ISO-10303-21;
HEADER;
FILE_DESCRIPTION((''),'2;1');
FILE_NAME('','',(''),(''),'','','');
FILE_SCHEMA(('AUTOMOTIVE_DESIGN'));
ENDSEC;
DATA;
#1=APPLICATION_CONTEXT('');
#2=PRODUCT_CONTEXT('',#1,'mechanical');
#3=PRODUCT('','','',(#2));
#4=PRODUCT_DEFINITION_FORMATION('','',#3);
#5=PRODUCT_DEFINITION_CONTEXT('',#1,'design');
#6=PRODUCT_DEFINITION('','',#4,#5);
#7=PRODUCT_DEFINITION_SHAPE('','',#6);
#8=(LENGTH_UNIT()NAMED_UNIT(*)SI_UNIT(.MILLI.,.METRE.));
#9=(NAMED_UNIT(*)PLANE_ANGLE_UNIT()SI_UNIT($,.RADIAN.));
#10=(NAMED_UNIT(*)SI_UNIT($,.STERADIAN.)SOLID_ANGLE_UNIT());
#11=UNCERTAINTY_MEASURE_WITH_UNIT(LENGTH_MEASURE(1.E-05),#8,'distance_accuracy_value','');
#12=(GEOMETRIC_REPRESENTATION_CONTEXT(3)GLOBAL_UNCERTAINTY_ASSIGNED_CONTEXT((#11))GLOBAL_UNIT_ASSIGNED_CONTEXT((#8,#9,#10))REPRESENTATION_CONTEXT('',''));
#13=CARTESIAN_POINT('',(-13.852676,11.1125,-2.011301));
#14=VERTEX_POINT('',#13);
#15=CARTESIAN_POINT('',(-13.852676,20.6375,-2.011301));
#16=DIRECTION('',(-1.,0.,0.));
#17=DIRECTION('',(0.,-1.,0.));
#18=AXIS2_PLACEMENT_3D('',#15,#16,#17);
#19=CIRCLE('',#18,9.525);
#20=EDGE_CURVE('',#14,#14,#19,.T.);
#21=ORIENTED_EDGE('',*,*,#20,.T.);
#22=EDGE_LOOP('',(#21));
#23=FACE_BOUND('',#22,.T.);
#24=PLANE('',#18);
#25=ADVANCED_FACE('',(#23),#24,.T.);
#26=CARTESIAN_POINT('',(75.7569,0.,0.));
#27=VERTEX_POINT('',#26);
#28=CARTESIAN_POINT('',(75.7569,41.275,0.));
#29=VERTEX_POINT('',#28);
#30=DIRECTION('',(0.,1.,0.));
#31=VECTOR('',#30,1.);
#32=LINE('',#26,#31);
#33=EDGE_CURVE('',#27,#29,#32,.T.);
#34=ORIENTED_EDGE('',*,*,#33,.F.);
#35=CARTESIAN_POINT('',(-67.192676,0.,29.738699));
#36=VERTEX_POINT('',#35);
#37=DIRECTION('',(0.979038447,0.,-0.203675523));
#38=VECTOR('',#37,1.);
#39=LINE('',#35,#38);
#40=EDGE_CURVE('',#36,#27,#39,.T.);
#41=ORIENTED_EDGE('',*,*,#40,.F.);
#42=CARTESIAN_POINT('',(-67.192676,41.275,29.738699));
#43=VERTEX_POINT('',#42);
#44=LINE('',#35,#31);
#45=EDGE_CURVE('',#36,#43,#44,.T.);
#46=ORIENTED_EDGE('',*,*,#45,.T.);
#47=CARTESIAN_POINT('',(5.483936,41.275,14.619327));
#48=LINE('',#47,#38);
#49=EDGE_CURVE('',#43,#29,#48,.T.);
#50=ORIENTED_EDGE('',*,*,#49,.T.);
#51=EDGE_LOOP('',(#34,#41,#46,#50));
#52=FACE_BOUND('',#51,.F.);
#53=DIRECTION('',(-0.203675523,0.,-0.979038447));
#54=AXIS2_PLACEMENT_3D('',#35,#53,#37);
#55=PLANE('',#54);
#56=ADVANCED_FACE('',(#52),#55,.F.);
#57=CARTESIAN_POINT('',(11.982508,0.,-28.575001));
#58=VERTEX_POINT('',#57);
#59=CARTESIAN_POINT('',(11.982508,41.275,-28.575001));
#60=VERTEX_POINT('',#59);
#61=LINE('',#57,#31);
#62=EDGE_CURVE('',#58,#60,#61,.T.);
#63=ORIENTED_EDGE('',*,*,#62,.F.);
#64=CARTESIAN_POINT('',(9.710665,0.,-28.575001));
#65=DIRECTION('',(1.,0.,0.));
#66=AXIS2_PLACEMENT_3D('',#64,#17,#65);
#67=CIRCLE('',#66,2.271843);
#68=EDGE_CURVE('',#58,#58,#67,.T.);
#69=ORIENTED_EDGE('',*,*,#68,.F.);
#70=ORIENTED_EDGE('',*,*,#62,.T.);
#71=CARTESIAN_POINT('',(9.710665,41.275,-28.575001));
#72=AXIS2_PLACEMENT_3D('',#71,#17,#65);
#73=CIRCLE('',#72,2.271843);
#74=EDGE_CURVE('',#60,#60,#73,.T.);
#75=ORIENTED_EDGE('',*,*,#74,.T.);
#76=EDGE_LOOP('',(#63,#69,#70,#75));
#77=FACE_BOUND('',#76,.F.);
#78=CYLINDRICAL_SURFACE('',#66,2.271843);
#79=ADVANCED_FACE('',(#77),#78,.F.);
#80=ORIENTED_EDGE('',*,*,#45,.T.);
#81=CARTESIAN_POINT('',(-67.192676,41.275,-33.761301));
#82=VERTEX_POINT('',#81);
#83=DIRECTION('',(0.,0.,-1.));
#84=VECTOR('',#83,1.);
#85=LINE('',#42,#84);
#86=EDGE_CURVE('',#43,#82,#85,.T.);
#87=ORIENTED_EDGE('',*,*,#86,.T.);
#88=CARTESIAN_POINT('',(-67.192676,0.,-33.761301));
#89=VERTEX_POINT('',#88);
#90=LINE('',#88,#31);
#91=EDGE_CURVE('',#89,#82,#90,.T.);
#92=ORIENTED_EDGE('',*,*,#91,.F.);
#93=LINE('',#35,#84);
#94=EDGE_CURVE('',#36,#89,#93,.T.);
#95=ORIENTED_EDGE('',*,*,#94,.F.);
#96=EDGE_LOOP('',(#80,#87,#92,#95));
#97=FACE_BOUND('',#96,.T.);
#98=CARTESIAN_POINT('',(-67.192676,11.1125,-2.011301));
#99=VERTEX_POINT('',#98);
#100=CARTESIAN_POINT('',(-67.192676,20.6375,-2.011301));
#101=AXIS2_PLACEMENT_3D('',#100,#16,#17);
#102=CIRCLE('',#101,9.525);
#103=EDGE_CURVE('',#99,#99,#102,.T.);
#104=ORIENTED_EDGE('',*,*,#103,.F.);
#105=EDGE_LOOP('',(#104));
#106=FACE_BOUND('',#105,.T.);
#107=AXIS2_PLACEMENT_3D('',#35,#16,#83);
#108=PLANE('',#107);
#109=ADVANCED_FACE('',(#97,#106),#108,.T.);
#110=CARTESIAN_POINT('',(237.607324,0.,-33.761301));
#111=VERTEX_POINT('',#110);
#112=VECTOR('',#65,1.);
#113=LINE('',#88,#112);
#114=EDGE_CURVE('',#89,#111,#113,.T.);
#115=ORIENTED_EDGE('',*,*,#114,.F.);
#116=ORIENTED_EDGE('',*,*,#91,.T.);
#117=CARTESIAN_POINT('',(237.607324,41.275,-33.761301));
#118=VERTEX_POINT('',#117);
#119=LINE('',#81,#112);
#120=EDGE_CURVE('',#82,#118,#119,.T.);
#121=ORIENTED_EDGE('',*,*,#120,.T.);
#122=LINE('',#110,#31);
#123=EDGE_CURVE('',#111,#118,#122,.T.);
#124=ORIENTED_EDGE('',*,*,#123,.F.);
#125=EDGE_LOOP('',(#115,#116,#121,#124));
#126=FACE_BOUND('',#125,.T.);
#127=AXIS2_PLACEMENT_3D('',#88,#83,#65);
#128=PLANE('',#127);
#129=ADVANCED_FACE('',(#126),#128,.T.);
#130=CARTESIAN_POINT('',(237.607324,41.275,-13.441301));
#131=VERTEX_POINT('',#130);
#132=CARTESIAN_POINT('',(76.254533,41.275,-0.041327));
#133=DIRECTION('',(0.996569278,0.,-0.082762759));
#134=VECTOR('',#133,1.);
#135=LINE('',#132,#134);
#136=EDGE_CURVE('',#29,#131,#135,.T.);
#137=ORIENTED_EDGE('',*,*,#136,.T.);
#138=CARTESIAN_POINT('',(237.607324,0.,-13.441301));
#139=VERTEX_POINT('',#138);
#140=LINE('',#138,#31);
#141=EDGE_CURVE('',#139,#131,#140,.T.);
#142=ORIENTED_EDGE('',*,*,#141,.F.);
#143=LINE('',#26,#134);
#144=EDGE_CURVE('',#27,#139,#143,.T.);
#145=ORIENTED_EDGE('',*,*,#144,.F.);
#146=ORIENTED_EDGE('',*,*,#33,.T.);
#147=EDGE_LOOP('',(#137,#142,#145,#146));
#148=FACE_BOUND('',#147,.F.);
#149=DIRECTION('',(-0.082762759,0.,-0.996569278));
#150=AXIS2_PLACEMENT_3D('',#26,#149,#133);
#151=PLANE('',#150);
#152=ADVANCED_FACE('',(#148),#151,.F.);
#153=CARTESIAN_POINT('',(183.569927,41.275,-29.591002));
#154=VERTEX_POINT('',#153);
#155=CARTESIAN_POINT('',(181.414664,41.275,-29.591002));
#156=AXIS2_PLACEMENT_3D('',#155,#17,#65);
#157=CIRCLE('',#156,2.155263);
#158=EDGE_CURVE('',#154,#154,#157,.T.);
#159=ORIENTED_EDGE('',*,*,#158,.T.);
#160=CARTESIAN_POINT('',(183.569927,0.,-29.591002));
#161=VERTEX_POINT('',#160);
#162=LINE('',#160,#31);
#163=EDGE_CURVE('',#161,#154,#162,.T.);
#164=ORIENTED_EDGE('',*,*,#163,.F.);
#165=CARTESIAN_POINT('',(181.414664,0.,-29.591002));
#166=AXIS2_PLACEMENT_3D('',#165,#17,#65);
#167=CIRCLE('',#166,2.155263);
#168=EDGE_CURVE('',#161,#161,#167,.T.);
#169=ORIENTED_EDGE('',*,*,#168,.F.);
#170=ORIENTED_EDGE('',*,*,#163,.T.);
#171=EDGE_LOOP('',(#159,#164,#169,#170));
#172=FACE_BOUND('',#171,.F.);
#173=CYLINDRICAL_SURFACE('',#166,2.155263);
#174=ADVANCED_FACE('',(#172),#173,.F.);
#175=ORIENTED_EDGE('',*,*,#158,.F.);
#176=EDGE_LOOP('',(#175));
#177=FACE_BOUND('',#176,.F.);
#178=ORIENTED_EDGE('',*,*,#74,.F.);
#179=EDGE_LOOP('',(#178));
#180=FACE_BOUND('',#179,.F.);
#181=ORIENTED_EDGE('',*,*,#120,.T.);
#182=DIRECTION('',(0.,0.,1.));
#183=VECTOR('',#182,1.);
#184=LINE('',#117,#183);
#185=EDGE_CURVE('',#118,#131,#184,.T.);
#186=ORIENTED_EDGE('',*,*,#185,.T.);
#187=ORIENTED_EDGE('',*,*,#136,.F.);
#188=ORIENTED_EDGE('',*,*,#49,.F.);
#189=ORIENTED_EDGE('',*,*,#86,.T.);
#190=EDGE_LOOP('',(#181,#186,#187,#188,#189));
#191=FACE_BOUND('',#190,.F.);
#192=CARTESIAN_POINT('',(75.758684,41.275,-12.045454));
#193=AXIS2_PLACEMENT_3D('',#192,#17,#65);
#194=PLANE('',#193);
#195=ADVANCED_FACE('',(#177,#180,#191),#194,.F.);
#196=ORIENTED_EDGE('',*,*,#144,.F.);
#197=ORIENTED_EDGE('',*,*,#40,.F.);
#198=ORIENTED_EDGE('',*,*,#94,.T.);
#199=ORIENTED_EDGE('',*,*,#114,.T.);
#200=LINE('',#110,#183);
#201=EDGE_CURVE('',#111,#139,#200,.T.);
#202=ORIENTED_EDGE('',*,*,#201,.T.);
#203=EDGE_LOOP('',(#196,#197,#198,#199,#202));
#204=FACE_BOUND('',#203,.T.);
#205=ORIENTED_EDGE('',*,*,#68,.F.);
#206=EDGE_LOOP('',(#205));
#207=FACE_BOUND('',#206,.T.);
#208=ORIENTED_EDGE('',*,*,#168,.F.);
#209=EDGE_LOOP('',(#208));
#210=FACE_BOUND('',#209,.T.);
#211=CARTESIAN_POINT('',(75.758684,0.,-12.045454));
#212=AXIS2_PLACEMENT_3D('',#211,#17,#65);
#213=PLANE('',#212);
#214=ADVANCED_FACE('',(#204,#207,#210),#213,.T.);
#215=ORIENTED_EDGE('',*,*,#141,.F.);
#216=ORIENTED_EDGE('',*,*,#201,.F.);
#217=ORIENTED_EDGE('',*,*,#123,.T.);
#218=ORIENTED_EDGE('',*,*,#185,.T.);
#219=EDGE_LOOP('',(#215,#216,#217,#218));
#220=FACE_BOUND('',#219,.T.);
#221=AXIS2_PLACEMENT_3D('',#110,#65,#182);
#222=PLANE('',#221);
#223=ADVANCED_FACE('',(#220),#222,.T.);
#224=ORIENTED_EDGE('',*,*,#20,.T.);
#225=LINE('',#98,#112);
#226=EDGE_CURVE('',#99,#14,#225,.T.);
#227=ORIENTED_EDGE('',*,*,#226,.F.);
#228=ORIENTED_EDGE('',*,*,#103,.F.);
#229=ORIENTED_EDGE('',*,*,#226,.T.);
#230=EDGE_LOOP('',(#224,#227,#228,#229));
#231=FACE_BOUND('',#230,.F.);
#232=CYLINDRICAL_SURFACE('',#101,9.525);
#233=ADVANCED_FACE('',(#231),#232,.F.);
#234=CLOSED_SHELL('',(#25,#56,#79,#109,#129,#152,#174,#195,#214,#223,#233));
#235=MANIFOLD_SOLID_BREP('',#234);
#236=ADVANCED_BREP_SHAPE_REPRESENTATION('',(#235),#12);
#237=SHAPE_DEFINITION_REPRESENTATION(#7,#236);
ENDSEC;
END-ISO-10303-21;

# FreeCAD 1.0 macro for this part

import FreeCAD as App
import Part
import Sketcher
from FreeCAD import Vector
Q = App.Units.Quantity

doc = App.newDocument("Part")
body = doc.addObject("PartDesign::Body", "Body")

sketch1 = body.newObject("Sketcher::SketchObject", "Sketch")
sketch1.AttachmentSupport = (doc.getObject("XZ_Plane"), [""])
sketch1.MapMode = "FlatFace"
sketch1.addGeometry([
    Part.LineSegment(Vector(238, -13, 0), Vector(-67, 30, 0)),
    Part.LineSegment(Vector(-67, 30, 0), Vector(-67, -34, 0)),
    Part.LineSegment(Vector(-67, -34, 0), Vector(238, -34, 0)),
    Part.LineSegment(Vector(238, -34, 0), Vector(238, -13, 0)),
], False)
sketch1.addConstraint([
    Sketcher.Constraint("Coincident", 0, 2, 1, 1),
    Sketcher.Constraint("Coincident", 1, 2, 2, 1),
    Sketcher.Constraint("Coincident", 2, 2, 3, 1),
    Sketcher.Constraint("Coincident", 3, 2, 0, 1),
    Sketcher.Constraint("Vertical", 1),
    Sketcher.Constraint("Horizontal", 2),
    Sketcher.Constraint("Vertical", 3),
    Sketcher.Constraint("DistanceX", 2, 1, 2, 2, Q("12 in")),
    Sketcher.Constraint("DistanceY", 1, 2, 1, 1, Q("2.5 in")),
    Sketcher.Constraint("DistanceY", 3, 1, 3, 2, Q("0.8 in")),
    Sketcher.Constraint("DistanceY", -1, 1, 0, 2, Q("29.738699 mm")),
    Sketcher.Constraint("DistanceX", 0, 2, -1, 1, Q("67.192676 mm")),
])
pad1 = body.newObject("PartDesign::Pad", "Pad")
pad1.Profile = sketch1
pad1.Length = Q("1.625 in")
pad1.Reversed = True

sketch2 = body.newObject("Sketcher::SketchObject", "Sketch001")
sketch2.AttachmentSupport = (doc.getObject("YZ_Plane"), [""])
sketch2.MapMode = "FlatFace"
sketch2.AttachmentOffset = App.Placement(Vector(0, 0, -67.192676), App.Rotation())
sketch2.addGeometry(Part.Circle(Vector(21, -2, 0), Vector(0, 0, 1), 10), False)
sketch2.addConstraint([
    Sketcher.Constraint("Diameter", 0, Q("0.75 in")),
    Sketcher.Constraint("DistanceX", -1, 1, 0, 3, Q("0.8125 in")),
    Sketcher.Constraint("DistanceY", 0, 3, -1, 1, Q("2.011301 mm")),
])
pocket1 = body.newObject("PartDesign::Pocket", "Pocket")
pocket1.Profile = sketch2
pocket1.Length = Q("2.1 in")
pocket1.Reversed = True

sketch3 = body.newObject("Sketcher::SketchObject", "Sketch002")
sketch3.AttachmentSupport = (doc.getObject("XZ_Plane"), [""])
sketch3.MapMode = "FlatFace"
sketch3.addGeometry([
    Part.LineSegment(Vector(238, -13, 0), Vector(-67, 30, 0)),
    Part.LineSegment(Vector(-67, 30, 0), Vector(76, 0, 0)),
    Part.LineSegment(Vector(76, 0, 0), Vector(238, -13, 0)),
], False)
sketch3.addConstraint([
    Sketcher.Constraint("Coincident", 0, 2, 1, 1),
    Sketcher.Constraint("Coincident", 1, 2, 2, 1),
    Sketcher.Constraint("Coincident", 2, 2, 0, 1),
    Sketcher.Constraint("PointOnObject", 1, 2, -1),
    Sketcher.Constraint("DistanceX", 0, 2, 2, 2, Q("12 in")),
    Sketcher.Constraint("DistanceY", 2, 2, 0, 2, Q("1.7 in")),
    Sketcher.Constraint("Distance", 2, Q("6.394 in")),
    Sketcher.Constraint("DistanceY", -1, 1, 0, 2, Q("29.738699 mm")),
    Sketcher.Constraint("DistanceX", -1, 1, 1, 2, Q("75.7569 mm")),
])
pocket2 = body.newObject("PartDesign::Pocket", "Pocket001")
pocket2.Profile = sketch3
pocket2.Length = Q("2.18 in")

sketch4 = body.newObject("Sketcher::SketchObject", "Sketch003")
sketch4.AttachmentSupport = (doc.getObject("XZ_Plane"), [""])
sketch4.MapMode = "FlatFace"
sketch4.addGeometry(Part.Circle(Vector(9.7, -28.6, 0), Vector(0, 0, 1), 2.3), False)
sketch4.addConstraint([
    Sketcher.Constraint("DistanceY", 0, 3, -1, 1, Q("1.125 in")),
    Sketcher.Constraint("Diameter", 0, Q("4.543686 mm")),
    Sketcher.Constraint("DistanceX", -1, 1, 0, 3, Q("9.710665 mm")),
])
pocket3 = body.newObject("PartDesign::Pocket", "Pocket002")
pocket3.Profile = sketch4
pocket3.Length = Q("4.21 in")

sketch5 = body.newObject("Sketcher::SketchObject", "Sketch004")
sketch5.AttachmentSupport = (doc.getObject("XZ_Plane"), [""])
sketch5.MapMode = "FlatFace"
sketch5.addGeometry(Part.Circle(Vector(181.4, -29.6, 0), Vector(0, 0, 1), 2.2), False)
sketch5.addConstraint([
    Sketcher.Constraint("DistanceY", 0, 3, -1, 1, Q("1.1650001 in")),
    Sketcher.Constraint("Diameter", 0, Q("4.310526 mm")),
    Sketcher.Constraint("DistanceX", -1, 1, 0, 3, Q("181.414664 mm")),
])
pocket4 = body.newObject("PartDesign::Pocket", "Pocket003")
pocket4.Profile = sketch5
pocket4.Length = Q("3.62 in")

doc.recompute()
